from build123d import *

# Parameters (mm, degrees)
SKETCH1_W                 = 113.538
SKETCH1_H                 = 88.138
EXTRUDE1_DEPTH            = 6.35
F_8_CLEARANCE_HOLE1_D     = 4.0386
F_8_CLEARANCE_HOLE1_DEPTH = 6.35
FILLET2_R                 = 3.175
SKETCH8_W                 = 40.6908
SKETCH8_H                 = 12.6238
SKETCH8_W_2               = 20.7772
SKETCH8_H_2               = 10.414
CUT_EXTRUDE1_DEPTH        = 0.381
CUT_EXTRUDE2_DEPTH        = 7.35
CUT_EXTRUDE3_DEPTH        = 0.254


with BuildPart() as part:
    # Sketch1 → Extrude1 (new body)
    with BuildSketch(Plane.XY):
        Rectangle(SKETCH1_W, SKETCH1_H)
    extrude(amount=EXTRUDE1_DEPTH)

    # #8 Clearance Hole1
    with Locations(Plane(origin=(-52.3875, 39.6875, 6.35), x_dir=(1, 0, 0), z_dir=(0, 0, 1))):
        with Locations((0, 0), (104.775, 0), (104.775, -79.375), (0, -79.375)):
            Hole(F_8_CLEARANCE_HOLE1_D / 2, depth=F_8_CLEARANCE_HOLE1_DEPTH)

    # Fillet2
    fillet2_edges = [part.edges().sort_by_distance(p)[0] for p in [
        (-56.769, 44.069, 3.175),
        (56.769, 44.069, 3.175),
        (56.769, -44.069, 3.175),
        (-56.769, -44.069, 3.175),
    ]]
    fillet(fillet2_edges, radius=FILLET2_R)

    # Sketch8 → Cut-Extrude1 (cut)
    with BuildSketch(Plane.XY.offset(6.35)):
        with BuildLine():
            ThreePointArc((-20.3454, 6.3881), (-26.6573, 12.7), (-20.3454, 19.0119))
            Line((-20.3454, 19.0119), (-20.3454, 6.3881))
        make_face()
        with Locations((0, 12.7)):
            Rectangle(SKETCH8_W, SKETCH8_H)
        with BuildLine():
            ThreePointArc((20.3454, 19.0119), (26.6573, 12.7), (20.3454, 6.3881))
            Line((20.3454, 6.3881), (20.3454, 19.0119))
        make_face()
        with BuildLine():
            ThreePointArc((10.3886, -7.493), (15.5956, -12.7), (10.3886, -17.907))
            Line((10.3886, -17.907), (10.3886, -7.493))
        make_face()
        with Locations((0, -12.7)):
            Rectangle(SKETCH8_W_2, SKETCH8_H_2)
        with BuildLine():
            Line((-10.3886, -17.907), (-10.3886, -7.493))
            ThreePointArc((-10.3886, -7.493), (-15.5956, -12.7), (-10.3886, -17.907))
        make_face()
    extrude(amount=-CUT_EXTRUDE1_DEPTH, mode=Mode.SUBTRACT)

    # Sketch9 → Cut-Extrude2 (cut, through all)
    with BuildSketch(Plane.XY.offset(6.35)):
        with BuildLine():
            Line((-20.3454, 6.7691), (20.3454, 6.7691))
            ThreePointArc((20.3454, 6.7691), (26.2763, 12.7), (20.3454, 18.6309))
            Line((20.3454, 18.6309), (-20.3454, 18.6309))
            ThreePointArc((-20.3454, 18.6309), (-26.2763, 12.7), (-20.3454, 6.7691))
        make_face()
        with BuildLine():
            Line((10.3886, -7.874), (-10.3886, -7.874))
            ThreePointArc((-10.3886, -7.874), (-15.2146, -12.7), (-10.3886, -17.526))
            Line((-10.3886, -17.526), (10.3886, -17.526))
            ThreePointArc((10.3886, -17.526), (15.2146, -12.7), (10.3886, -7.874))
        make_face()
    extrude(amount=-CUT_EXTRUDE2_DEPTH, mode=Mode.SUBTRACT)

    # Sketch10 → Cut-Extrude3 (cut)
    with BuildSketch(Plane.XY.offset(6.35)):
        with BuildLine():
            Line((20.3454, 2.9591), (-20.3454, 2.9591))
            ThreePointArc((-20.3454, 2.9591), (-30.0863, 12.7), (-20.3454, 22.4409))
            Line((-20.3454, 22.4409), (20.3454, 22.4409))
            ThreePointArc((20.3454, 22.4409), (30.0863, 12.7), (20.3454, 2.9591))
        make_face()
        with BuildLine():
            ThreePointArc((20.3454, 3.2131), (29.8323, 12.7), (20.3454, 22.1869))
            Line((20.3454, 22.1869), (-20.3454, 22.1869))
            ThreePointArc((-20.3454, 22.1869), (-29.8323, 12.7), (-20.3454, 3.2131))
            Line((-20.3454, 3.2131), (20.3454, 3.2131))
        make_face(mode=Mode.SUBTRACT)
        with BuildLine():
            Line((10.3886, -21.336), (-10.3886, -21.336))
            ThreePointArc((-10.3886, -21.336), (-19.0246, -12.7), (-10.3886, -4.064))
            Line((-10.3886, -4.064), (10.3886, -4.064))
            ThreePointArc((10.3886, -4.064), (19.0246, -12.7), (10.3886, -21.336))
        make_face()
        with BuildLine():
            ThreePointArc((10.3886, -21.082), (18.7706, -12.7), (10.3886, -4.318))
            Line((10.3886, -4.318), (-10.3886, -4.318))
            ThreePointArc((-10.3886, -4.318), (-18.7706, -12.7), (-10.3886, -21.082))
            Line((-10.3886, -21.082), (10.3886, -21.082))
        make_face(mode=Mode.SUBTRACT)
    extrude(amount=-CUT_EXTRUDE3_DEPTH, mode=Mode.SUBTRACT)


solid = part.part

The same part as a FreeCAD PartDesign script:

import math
import FreeCAD as App
import Part
import Sketcher
from FreeCAD import Vector
Q = App.Units.Quantity


def edges_at(feature, points):
    """Names of the edges that pass closest to the given points."""
    edges = feature.Shape.Edges
    near = lambda p: min(range(len(edges)), key=lambda i: edges[i].distToShape(Part.Vertex(*p))[0])
    return sorted({f"Edge{near(p) + 1}" for p in points})


def add_polygon(sketch, points):
    """Adds a closed chain of lines whose ends are joined by coincident constraints."""
    first, n = sketch.GeometryCount, len(points)
    for a, b in zip(points, points[1:] + points[:1]):
        sketch.addGeometry(Part.LineSegment(App.Vector(*a, 0), App.Vector(*b, 0)), False)
    for i in range(n):
        sketch.addConstraint(Sketcher.Constraint("Coincident", first + i, 2, first + (i + 1) % n, 1))

doc = App.newDocument("Part")
body = doc.addObject("PartDesign::Body", "Body")

# Sketch on XY plane
sketch1 = body.newObject("Sketcher::SketchObject", "Sketch")
sketch1.AttachmentSupport = (doc.getObject("XY_Plane"), [""])
sketch1.MapMode = "FlatFace"
add_polygon(sketch1, [(-57, 44), (-57, -44), (57, -44), (57, 44)])  # lines 0-3
sketch1.addConstraint([
    Sketcher.Constraint("Vertical", 0),
    Sketcher.Constraint("Horizontal", 1),
    Sketcher.Constraint("Vertical", 2),
    Sketcher.Constraint("Horizontal", 3),
    Sketcher.Constraint("Symmetric", 0, 2, 2, 2, -1, 1),
    Sketcher.Constraint("DistanceX", 1, 1, 1, 2, Q("4.47 in")),
    Sketcher.Constraint("DistanceY", 0, 2, 0, 1, Q("3.47 in")),
])
pad1 = body.newObject("PartDesign::Pad", "Pad")
pad1.Profile = sketch1
pad1.Length = Q("0.25 in")

# Sketch on XY plane
sketch2 = body.newObject("Sketcher::SketchObject", "Sketch001")
sketch2.AttachmentSupport = (doc.getObject("XY_Plane"), [""])
sketch2.MapMode = "FlatFace"
sketch2.AttachmentOffset = App.Placement(Vector(0, 0, 0.25 * 25.4), App.Rotation())
sketch2.addGeometry([
    Part.Circle(Vector(-52.4, 39.7, 0), Vector(0, 0, 1), 2),
    Part.Circle(Vector(52.4, 39.7, 0), Vector(0, 0, 1), 2),
    Part.Circle(Vector(52.4, -39.7, 0), Vector(0, 0, 1), 2),
    Part.Circle(Vector(-52.4, -39.7, 0), Vector(0, 0, 1), 2),
], False)
sketch2.addConstraint([
    Sketcher.Constraint("Equal", 0, 1),
    Sketcher.Constraint("Equal", 1, 2),
    Sketcher.Constraint("Equal", 2, 3),
    Sketcher.Constraint("Symmetric", 0, 3, 2, 3, -1, 1),
    Sketcher.Constraint("Symmetric", 1, 3, 3, 3, -1, 1),
    Sketcher.Constraint("Symmetric", 0, 3, 1, 3, -2),
    Sketcher.Constraint("Diameter", 0, Q("0.159 in")),
    Sketcher.Constraint("DistanceX", 0, 3, -1, 1, Q("2.0625 in")),
    Sketcher.Constraint("DistanceY", -1, 1, 0, 3, Q("1.5625 in")),
])
doc.recompute()
hole = body.newObject("PartDesign::Hole", "Hole")
hole.Profile = sketch2
hole.ThreadType = "None"
hole.Diameter = Q("0.159 in")
hole.DepthType = "Dimension"
hole.Depth = Q("0.25 in")
hole.DrillPoint = "Flat"
doc.recompute()

fillet = body.newObject("PartDesign::Fillet", "Fillet")
fillet.Base = (hole, edges_at(hole, [
    (-56.769, 44.069, 3.175),
    (56.769, 44.069, 3.175),
    (56.769, -44.069, 3.175),
    (-56.769, -44.069, 3.175),
]))
fillet.Radius = Q("0.125 in")

# Sketch on XY plane
sketch3 = body.newObject("Sketcher::SketchObject", "Sketch002")
sketch3.AttachmentSupport = (doc.getObject("XY_Plane"), [""])
sketch3.MapMode = "FlatFace"
sketch3.AttachmentOffset = App.Placement(Vector(0, 0, 0.25 * 25.4), App.Rotation())
sketch3.addGeometry([
    Part.ArcOfCircle(Part.Circle(Vector(-20, 13, 0), Vector(0, 0, 1), 6), math.radians(90), math.radians(270)),  # 0
    Part.LineSegment(Vector(-20, 6, 0), Vector(20, 6, 0)),  # 1
    Part.ArcOfCircle(Part.Circle(Vector(20, 13, 0), Vector(0, 0, 1), 6), math.radians(-90), math.radians(90)),  # 2
    Part.LineSegment(Vector(20, 19, 0), Vector(-20, 19, 0)),  # 3
    Part.ArcOfCircle(Part.Circle(Vector(10, -13, 0), Vector(0, 0, 1), 5), math.radians(-90), math.radians(90)),  # 4
    Part.LineSegment(Vector(10, -7, 0), Vector(-10, -7, 0)),  # 5
    Part.ArcOfCircle(Part.Circle(Vector(-10, -13, 0), Vector(0, 0, 1), 5), math.radians(90), math.radians(270)),  # 6
    Part.LineSegment(Vector(-10, -18, 0), Vector(10, -18, 0)),  # 7
], False)
sketch3.addConstraint([
    Sketcher.Constraint("Tangent", 0, 2, 1, 1),
    Sketcher.Constraint("Tangent", 1, 2, 2, 1),
    Sketcher.Constraint("Tangent", 2, 2, 3, 1),
    Sketcher.Constraint("Tangent", 3, 2, 0, 1),
    Sketcher.Constraint("Tangent", 4, 2, 5, 1),
    Sketcher.Constraint("Tangent", 5, 2, 6, 1),
    Sketcher.Constraint("Tangent", 6, 2, 7, 1),
    Sketcher.Constraint("Tangent", 7, 2, 4, 1),
    Sketcher.Constraint("Horizontal", 1),
    Sketcher.Constraint("Horizontal", 3),
    Sketcher.Constraint("Horizontal", 5),
    Sketcher.Constraint("Horizontal", 7),
    Sketcher.Constraint("Radius", 4, Q("0.205 in")),
    Sketcher.Constraint("DistanceY", 4, 3, 2, 3, Q("1 in")),
    Sketcher.Constraint("DistanceY", -1, 1, 0, 3, Q("0.5 in")),
    Sketcher.Constraint("Radius", 0, Q("0.2485 in")),
    Sketcher.Constraint("DistanceX", 1, 1, 1, 2, Q("1.602 in")),
    Sketcher.Constraint("DistanceX", 5, 2, 5, 1, Q("0.818 in")),
    Sketcher.Constraint("DistanceX", 0, 3, 4, 3, Q("1.21 in")),
    Sketcher.Constraint("DistanceX", 0, 3, -1, 1, Q("0.801 in")),
])
pocket1 = body.newObject("PartDesign::Pocket", "Pocket")
pocket1.Profile = sketch3
pocket1.Length = Q("0.015 in")

# Sketch on XY plane
sketch4 = body.newObject("Sketcher::SketchObject", "Sketch003")
sketch4.AttachmentSupport = (doc.getObject("XY_Plane"), [""])
sketch4.MapMode = "FlatFace"
sketch4.AttachmentOffset = App.Placement(Vector(0, 0, 0.25 * 25.4), App.Rotation())
sketch4.addGeometry([
    Part.LineSegment(Vector(-20.3, 6.8, 0), Vector(20.3, 6.8, 0)),  # 0
    Part.ArcOfCircle(Part.Circle(Vector(20.3, 12.7, 0), Vector(0, 0, 1), 5.9), math.radians(-90), math.radians(90)),  # 1
    Part.LineSegment(Vector(20.3, 18.6, 0), Vector(-20.3, 18.6, 0)),  # 2
    Part.ArcOfCircle(Part.Circle(Vector(-20.3, 12.7, 0), Vector(0, 0, 1), 5.9), math.radians(90), math.radians(270)),  # 3
    Part.LineSegment(Vector(10.4, -7.9, 0), Vector(-10.4, -7.9, 0)),  # 4
    Part.ArcOfCircle(Part.Circle(Vector(-10.4, -12.7, 0), Vector(0, 0, 1), 4.8), math.radians(90), math.radians(270)),  # 5
    Part.LineSegment(Vector(-10.4, -17.5, 0), Vector(10.4, -17.5, 0)),  # 6
    Part.ArcOfCircle(Part.Circle(Vector(10.4, -12.7, 0), Vector(0, 0, 1), 4.8), math.radians(-90), math.radians(90)),  # 7
], False)
sketch4.addConstraint([
    Sketcher.Constraint("Tangent", 0, 2, 1, 1),
    Sketcher.Constraint("Tangent", 1, 2, 2, 1),
    Sketcher.Constraint("Tangent", 2, 2, 3, 1),
    Sketcher.Constraint("Tangent", 3, 2, 0, 1),
    Sketcher.Constraint("Tangent", 4, 2, 5, 1),
    Sketcher.Constraint("Tangent", 5, 2, 6, 1),
    Sketcher.Constraint("Tangent", 6, 2, 7, 1),
    Sketcher.Constraint("Tangent", 7, 2, 4, 1),
    Sketcher.Constraint("Horizontal", 0),
    Sketcher.Constraint("Horizontal", 2),
    Sketcher.Constraint("Horizontal", 4),
    Sketcher.Constraint("Horizontal", 6),
    Sketcher.Constraint("Radius", 5, Q("0.19 in")),
    Sketcher.Constraint("DistanceY", 5, 3, 3, 3, Q("1 in")),
    Sketcher.Constraint("DistanceY", -1, 1, 1, 3, Q("0.5 in")),
    Sketcher.Constraint("Radius", 1, Q("0.2335 in")),
    Sketcher.Constraint("DistanceX", 0, 1, 0, 2, Q("1.602 in")),
    Sketcher.Constraint("DistanceX", 4, 2, 4, 1, Q("0.818 in")),
    Sketcher.Constraint("DistanceX", 5, 3, 1, 3, Q("1.21 in")),
    Sketcher.Constraint("DistanceX", -1, 1, 1, 3, Q("0.801 in")),
])
pocket2 = body.newObject("PartDesign::Pocket", "Pocket001")
pocket2.Profile = sketch4
pocket2.Type = "ThroughAll"

# Sketch on XY plane
sketch5 = body.newObject("Sketcher::SketchObject", "Sketch004")
sketch5.AttachmentSupport = (doc.getObject("XY_Plane"), [""])
sketch5.MapMode = "FlatFace"
sketch5.AttachmentOffset = App.Placement(Vector(0, 0, 0.25 * 25.4), App.Rotation())
sketch5.addGeometry([
    Part.LineSegment(Vector(-20, 3, 0), Vector(20, 3, 0)),  # 0
    Part.ArcOfCircle(Part.Circle(Vector(20, 13, 0), Vector(0, 0, 1), 10), math.radians(-90), math.radians(90)),  # 1
    Part.LineSegment(Vector(20, 22, 0), Vector(-20, 22, 0)),  # 2
    Part.ArcOfCircle(Part.Circle(Vector(-20, 13, 0), Vector(0, 0, 1), 10), math.radians(90), math.radians(270)),  # 3
    Part.LineSegment(Vector(20, 3, 0), Vector(-20, 3, 0)),  # 4
    Part.ArcOfCircle(Part.Circle(Vector(-20, 13, 0), Vector(0, 0, 1), 9), math.radians(90), math.radians(270)),  # 5
    Part.LineSegment(Vector(-20, 22, 0), Vector(20, 22, 0)),  # 6
    Part.ArcOfCircle(Part.Circle(Vector(20, 13, 0), Vector(0, 0, 1), 9), math.radians(-90), math.radians(90)),  # 7
    Part.LineSegment(Vector(-10, -21, 0), Vector(10, -21, 0)),  # 8
    Part.ArcOfCircle(Part.Circle(Vector(10, -13, 0), Vector(0, 0, 1), 9), math.radians(-90), math.radians(90)),  # 9
    Part.LineSegment(Vector(10, -4, 0), Vector(-10, -4, 0)),  # 10
    Part.ArcOfCircle(Part.Circle(Vector(-10, -13, 0), Vector(0, 0, 1), 9), math.radians(90), math.radians(270)),  # 11
    Part.LineSegment(Vector(10, -21, 0), Vector(-10, -21, 0)),  # 12
    Part.ArcOfCircle(Part.Circle(Vector(-10, -13, 0), Vector(0, 0, 1), 8), math.radians(90), math.radians(270)),  # 13
    Part.LineSegment(Vector(-10, -4, 0), Vector(10, -4, 0)),  # 14
    Part.ArcOfCircle(Part.Circle(Vector(10, -13, 0), Vector(0, 0, 1), 8), math.radians(-90), math.radians(90)),  # 15
], False)
sketch5.addConstraint([
    Sketcher.Constraint("Tangent", 0, 2, 1, 1),
    Sketcher.Constraint("Tangent", 1, 2, 2, 1),
    Sketcher.Constraint("Tangent", 2, 2, 3, 1),
    Sketcher.Constraint("Tangent", 3, 2, 0, 1),
    Sketcher.Constraint("Tangent", 4, 2, 5, 2),
    Sketcher.Constraint("Tangent", 5, 1, 6, 1),
    Sketcher.Constraint("Tangent", 6, 2, 7, 2),
    Sketcher.Constraint("Tangent", 7, 1, 4, 1),
    Sketcher.Constraint("Tangent", 8, 2, 9, 1),
    Sketcher.Constraint("Tangent", 9, 2, 10, 1),
    Sketcher.Constraint("Tangent", 10, 2, 11, 1),
    Sketcher.Constraint("Tangent", 11, 2, 8, 1),
    Sketcher.Constraint("Tangent", 12, 2, 13, 2),
    Sketcher.Constraint("Tangent", 13, 1, 14, 1),
    Sketcher.Constraint("Tangent", 14, 2, 15, 2),
    Sketcher.Constraint("Tangent", 15, 1, 12, 1),
    Sketcher.Constraint("Horizontal", 0),
    Sketcher.Constraint("Horizontal", 2),
    Sketcher.Constraint("Horizontal", 4),
    Sketcher.Constraint("Horizontal", 6),
    Sketcher.Constraint("Horizontal", 8),
    Sketcher.Constraint("Horizontal", 10),
    Sketcher.Constraint("Horizontal", 12),
    Sketcher.Constraint("Horizontal", 14),
    Sketcher.Constraint("Coincident", 5, 3, 3, 3),
    Sketcher.Constraint("Coincident", 13, 3, 11, 3),
    Sketcher.Constraint("Vertical", 7, 3, 0, 2),
    Sketcher.Constraint("Vertical", 15, 3, 8, 2),
    Sketcher.Constraint("Radius", 9, Q("0.34 in")),
    Sketcher.Constraint("Radius", 13, Q("0.33 in")),
    Sketcher.Constraint("DistanceY", 9, 3, 1, 3, Q("1 in")),
    Sketcher.Constraint("DistanceY", -1, 1, 1, 3, Q("0.5 in")),
    Sketcher.Constraint("Radius", 1, Q("0.3835 in")),
    Sketcher.Constraint("Radius", 5, Q("0.3735 in")),
    Sketcher.Constraint("DistanceX", 0, 1, 0, 2, Q("1.602 in")),
    Sketcher.Constraint("DistanceX", 8, 1, 8, 2, Q("0.818 in")),
    Sketcher.Constraint("DistanceX", 3, 3, 9, 3, Q("1.21 in")),
    Sketcher.Constraint("DistanceX", -1, 1, 1, 3, Q("0.801 in")),
])
pocket3 = body.newObject("PartDesign::Pocket", "Pocket002")
pocket3.Profile = sketch5
pocket3.Length = Q("0.01 in")

doc.recompute()
